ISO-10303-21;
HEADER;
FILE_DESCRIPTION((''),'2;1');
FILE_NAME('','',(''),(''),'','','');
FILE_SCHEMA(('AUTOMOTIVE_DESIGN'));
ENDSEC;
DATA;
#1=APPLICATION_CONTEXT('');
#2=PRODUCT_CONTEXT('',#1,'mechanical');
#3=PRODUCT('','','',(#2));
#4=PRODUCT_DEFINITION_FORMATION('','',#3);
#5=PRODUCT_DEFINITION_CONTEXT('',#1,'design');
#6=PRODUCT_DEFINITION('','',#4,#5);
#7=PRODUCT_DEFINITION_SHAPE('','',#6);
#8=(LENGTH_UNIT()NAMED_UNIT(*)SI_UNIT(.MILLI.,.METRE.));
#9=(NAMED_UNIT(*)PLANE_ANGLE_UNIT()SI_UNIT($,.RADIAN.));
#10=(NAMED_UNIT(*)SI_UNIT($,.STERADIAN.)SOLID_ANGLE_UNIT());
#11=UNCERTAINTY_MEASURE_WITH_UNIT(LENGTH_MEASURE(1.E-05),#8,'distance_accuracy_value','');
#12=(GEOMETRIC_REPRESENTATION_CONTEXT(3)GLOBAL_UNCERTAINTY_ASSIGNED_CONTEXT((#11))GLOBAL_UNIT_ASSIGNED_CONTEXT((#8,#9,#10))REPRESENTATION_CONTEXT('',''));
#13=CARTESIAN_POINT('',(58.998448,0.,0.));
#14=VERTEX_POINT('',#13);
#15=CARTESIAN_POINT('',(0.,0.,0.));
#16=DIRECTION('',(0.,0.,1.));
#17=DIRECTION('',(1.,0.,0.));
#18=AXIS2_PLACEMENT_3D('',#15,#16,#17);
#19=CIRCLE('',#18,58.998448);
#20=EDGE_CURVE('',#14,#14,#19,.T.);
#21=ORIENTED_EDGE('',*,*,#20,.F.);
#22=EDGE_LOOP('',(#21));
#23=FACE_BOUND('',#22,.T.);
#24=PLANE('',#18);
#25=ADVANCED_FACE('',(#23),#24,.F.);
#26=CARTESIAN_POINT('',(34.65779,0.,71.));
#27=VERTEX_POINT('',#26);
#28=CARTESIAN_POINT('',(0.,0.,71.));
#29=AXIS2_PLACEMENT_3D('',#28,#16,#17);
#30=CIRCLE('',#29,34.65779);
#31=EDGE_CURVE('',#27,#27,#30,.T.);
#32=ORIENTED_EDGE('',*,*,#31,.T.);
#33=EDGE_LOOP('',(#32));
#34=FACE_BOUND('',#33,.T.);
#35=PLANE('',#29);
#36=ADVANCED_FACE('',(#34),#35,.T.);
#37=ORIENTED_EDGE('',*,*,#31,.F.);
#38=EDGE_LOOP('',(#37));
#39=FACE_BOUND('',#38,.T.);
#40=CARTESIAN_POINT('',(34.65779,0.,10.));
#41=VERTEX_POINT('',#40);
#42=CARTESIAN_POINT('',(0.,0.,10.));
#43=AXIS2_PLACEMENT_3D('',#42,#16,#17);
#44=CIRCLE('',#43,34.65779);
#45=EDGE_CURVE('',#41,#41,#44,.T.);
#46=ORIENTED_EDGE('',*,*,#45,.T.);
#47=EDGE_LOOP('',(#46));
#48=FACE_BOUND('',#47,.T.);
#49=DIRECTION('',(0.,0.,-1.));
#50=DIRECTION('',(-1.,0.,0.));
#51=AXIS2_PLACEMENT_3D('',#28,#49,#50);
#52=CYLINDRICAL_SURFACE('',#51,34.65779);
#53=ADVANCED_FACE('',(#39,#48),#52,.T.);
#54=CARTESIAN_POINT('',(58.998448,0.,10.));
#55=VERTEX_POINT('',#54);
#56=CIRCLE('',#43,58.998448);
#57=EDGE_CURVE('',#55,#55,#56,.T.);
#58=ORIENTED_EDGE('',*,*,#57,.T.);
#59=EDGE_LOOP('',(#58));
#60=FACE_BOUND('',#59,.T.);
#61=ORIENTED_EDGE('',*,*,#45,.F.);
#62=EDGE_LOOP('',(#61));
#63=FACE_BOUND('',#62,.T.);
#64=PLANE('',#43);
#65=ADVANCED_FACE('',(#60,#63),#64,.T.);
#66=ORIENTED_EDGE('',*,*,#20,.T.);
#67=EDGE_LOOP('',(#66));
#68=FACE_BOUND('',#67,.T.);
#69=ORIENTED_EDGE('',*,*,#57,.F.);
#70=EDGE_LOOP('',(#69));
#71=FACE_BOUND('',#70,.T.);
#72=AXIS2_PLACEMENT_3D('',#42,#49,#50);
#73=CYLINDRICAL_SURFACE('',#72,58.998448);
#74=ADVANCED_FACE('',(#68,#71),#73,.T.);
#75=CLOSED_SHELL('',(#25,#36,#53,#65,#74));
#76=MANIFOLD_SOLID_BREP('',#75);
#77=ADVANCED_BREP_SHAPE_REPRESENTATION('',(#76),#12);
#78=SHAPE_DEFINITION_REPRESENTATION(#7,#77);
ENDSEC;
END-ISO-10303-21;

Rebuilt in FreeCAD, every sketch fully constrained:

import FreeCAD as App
import Part
import Sketcher

doc = App.newDocument("Part")
params = doc.addObject("Spreadsheet::Sheet", "Params")
for row, (alias, value) in enumerate([
    ("pad1_length", "10 mm"),
    ("pad2_length", "61 mm"),
], start=1):
    params.set(f"A{row}", alias)
    params.set(f"B{row}", "=" + value)
    params.setAlias(f"B{row}", alias)

body = doc.addObject("PartDesign::Body", "Body")

sketch1 = body.newObject("Sketcher::SketchObject", "Sketch")
sketch1.AttachmentSupport = (doc.getObject("XY_Plane"), [""])
sketch1.MapMode = "FlatFace"
sketch1.addGeometry(Part.Circle(App.Vector(0, 0, 0), App.Vector(0, 0, 1), 59), False)
sketch1.addConstraint([
    Sketcher.Constraint("Coincident", 0, 3, -1, 1),
    Sketcher.Constraint("Diameter", 0, 117.996897),
])
pad1 = body.newObject("PartDesign::Pad", "Pad")
pad1.Profile = sketch1
pad1.setExpression("Length", "Params.pad1_length")

sketch2 = body.newObject("Sketcher::SketchObject", "Sketch001")
sketch2.AttachmentSupport = (doc.getObject("XY_Plane"), [""])
sketch2.MapMode = "FlatFace"
sketch2.AttachmentOffset = App.Placement(App.Vector(0, 0, 10), App.Rotation())
sketch2.addGeometry(Part.Circle(App.Vector(0, 0, 0), App.Vector(0, 0, 1), 35), False)
sketch2.addConstraint([
    Sketcher.Constraint("Coincident", 0, 3, -1, 1),
    Sketcher.Constraint("Diameter", 0, 69.31558),
])
pad2 = body.newObject("PartDesign::Pad", "Pad001")
pad2.Profile = sketch2
pad2.setExpression("Length", "Params.pad2_length")

doc.recompute()
